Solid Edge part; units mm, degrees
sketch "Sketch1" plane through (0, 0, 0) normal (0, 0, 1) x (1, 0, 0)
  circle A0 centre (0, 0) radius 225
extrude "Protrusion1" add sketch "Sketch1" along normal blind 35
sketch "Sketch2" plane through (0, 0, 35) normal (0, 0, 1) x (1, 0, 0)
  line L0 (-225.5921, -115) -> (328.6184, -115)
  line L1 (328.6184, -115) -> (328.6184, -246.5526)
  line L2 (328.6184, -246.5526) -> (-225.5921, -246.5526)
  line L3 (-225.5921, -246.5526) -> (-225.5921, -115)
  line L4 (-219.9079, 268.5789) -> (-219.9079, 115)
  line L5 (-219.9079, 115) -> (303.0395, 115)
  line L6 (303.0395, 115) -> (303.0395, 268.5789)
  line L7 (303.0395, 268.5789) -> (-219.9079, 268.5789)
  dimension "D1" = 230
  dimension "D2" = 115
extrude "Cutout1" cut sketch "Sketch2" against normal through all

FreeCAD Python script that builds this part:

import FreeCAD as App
import Part
import Sketcher
Q = App.Units.Quantity

doc = App.newDocument("Part")
params = doc.addObject("Spreadsheet::Sheet", "Params")
for row, (alias, value) in enumerate([
    ("sketch1_diameter", "450 mm"),
    ("pad1_length", "35 mm"),
], start=1):
    params.set(f"A{row}", alias)
    params.set(f"B{row}", "=" + value)
    params.setAlias(f"B{row}", alias)

body = doc.addObject("PartDesign::Body", "Body")

# Sketch on XY plane
sketch1 = body.newObject("Sketcher::SketchObject", "Sketch")
sketch1.AttachmentSupport = (doc.getObject("XY_Plane"), [""])
sketch1.MapMode = "FlatFace"
sketch1.addGeometry(Part.Circle(App.Vector(0, 0, 0), App.Vector(0, 0, 1), 225), False)
sketch1.addConstraint(Sketcher.Constraint("Coincident", 0, 3, -1, 1))
sketch1.addConstraint(Sketcher.Constraint("Diameter", 0, Q("450 mm")))
sketch1.setExpression("Constraints[1]", "Params.sketch1_diameter")
pad1 = body.newObject("PartDesign::Pad", "Pad")
pad1.Profile = sketch1
pad1.setExpression("Length", "Params.pad1_length")

# Sketch on XY plane
sketch2 = body.newObject("Sketcher::SketchObject", "Sketch001")
sketch2.AttachmentSupport = (doc.getObject("XY_Plane"), [""])
sketch2.MapMode = "FlatFace"
sketch2.AttachmentOffset = App.Placement(App.Vector(0, 0, 35), App.Rotation())
sketch2.addGeometry(Part.LineSegment(App.Vector(329, -115, 0), App.Vector(-226, -115, 0)), False)
sketch2.addGeometry(Part.LineSegment(App.Vector(-226, -115, 0), App.Vector(-226, -247, 0)), False)
sketch2.addGeometry(Part.LineSegment(App.Vector(-226, -247, 0), App.Vector(329, -247, 0)), False)
sketch2.addGeometry(Part.LineSegment(App.Vector(329, -247, 0), App.Vector(329, -115, 0)), False)
sketch2.addGeometry(Part.LineSegment(App.Vector(303, 269, 0), App.Vector(-220, 269, 0)), False)
sketch2.addGeometry(Part.LineSegment(App.Vector(-220, 269, 0), App.Vector(-220, 115, 0)), False)
sketch2.addGeometry(Part.LineSegment(App.Vector(-220, 115, 0), App.Vector(303, 115, 0)), False)
sketch2.addGeometry(Part.LineSegment(App.Vector(303, 115, 0), App.Vector(303, 269, 0)), False)
sketch2.addConstraint(Sketcher.Constraint("Coincident", 0, 2, 1, 1))
sketch2.addConstraint(Sketcher.Constraint("Coincident", 1, 2, 2, 1))
sketch2.addConstraint(Sketcher.Constraint("Coincident", 2, 2, 3, 1))
sketch2.addConstraint(Sketcher.Constraint("Coincident", 3, 2, 0, 1))
sketch2.addConstraint(Sketcher.Constraint("Coincident", 4, 2, 5, 1))
sketch2.addConstraint(Sketcher.Constraint("Coincident", 5, 2, 6, 1))
sketch2.addConstraint(Sketcher.Constraint("Coincident", 6, 2, 7, 1))
sketch2.addConstraint(Sketcher.Constraint("Coincident", 7, 2, 4, 1))
sketch2.addConstraint(Sketcher.Constraint("Horizontal", 0))
sketch2.addConstraint(Sketcher.Constraint("Vertical", 1))
sketch2.addConstraint(Sketcher.Constraint("Horizontal", 2))
sketch2.addConstraint(Sketcher.Constraint("Vertical", 3))
sketch2.addConstraint(Sketcher.Constraint("Horizontal", 4))
sketch2.addConstraint(Sketcher.Constraint("Vertical", 5))
sketch2.addConstraint(Sketcher.Constraint("Horizontal", 6))
sketch2.addConstraint(Sketcher.Constraint("Vertical", 7))
sketch2.addConstraint(Sketcher.Constraint("DistanceY", 0, 2, -1, 1, Q("115 mm")))
sketch2.addConstraint(Sketcher.Constraint("DistanceY", -1, 1, 5, 2, Q("115 mm")))
sketch2.addConstraint(Sketcher.Constraint("DistanceY", 5, 2, 5, 1, Q("153.579 mm")))
sketch2.addConstraint(Sketcher.Constraint("DistanceX", 0, 2, 0, 1, Q("554.2105 mm")))
sketch2.addConstraint(Sketcher.Constraint("DistanceX", 4, 2, 4, 1, Q("522.9474 mm")))
sketch2.addConstraint(Sketcher.Constraint("DistanceY", 1, 2, 1, 1, Q("131.5526 mm")))
sketch2.addConstraint(Sketcher.Constraint("DistanceX", 0, 2, -1, 1, Q("225.592 mm")))
sketch2.addConstraint(Sketcher.Constraint("DistanceX", 4, 2, -1, 1, Q("219.908 mm")))
pocket1 = body.newObject("PartDesign::Pocket", "Pocket")
pocket1.Profile = sketch2
pocket1.Type = "ThroughAll"

doc.recompute()
